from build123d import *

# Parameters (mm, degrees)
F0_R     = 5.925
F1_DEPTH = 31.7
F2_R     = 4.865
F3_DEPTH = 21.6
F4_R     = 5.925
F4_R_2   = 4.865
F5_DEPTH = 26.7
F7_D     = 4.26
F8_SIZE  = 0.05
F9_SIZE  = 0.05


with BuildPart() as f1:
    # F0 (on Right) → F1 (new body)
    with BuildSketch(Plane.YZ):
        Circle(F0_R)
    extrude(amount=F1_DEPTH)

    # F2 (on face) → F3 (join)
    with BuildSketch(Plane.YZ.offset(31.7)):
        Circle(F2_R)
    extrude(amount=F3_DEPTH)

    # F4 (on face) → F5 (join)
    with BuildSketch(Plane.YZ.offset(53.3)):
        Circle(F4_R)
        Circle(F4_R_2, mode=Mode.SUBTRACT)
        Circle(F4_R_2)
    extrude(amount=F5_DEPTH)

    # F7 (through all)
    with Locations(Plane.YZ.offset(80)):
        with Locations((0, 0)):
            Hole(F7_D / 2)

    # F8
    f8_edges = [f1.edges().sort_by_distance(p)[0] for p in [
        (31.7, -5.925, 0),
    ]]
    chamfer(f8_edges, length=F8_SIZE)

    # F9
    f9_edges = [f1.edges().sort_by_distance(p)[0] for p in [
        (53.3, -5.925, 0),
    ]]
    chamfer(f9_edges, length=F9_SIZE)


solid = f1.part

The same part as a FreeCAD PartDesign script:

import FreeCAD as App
import Part
import Sketcher


def edges_at(feature, points):
    """Names of the edges that pass closest to the given points."""
    edges = feature.Shape.Edges
    near = lambda p: min(range(len(edges)), key=lambda i: edges[i].distToShape(Part.Vertex(*p))[0])
    return sorted({f"Edge{near(p) + 1}" for p in points})

doc = App.newDocument("Part")
body = doc.addObject("PartDesign::Body", "Body")

sketch1 = body.newObject("Sketcher::SketchObject", "Sketch")
sketch1.AttachmentSupport = (doc.getObject("YZ_Plane"), [""])
sketch1.MapMode = "FlatFace"
sketch1.addGeometry(Part.Circle(App.Vector(0, 0, 0), App.Vector(0, 0, 1), 6), False)
sketch1.addConstraint([
    Sketcher.Constraint("Coincident", 0, 3, -1, 1),
    Sketcher.Constraint("Diameter", 0, 11.85),
])
pad1 = body.newObject("PartDesign::Pad", "Pad")
pad1.Profile = sketch1
pad1.Length = 31.7

sketch2 = body.newObject("Sketcher::SketchObject", "Sketch001")
sketch2.AttachmentSupport = (doc.getObject("YZ_Plane"), [""])
sketch2.MapMode = "FlatFace"
sketch2.AttachmentOffset = App.Placement(App.Vector(0, 0, 31.7), App.Rotation())
sketch2.addGeometry(Part.Circle(App.Vector(0, 0, 0), App.Vector(0, 0, 1), 4.9), False)
sketch2.addConstraint([
    Sketcher.Constraint("Coincident", 0, 3, -1, 1),
    Sketcher.Constraint("Diameter", 0, 9.73),
])
pad2 = body.newObject("PartDesign::Pad", "Pad001")
pad2.Profile = sketch2
pad2.Length = 21.6

sketch3 = body.newObject("Sketcher::SketchObject", "Sketch002")
sketch3.AttachmentSupport = (doc.getObject("YZ_Plane"), [""])
sketch3.MapMode = "FlatFace"
sketch3.AttachmentOffset = App.Placement(App.Vector(0, 0, 53.3), App.Rotation())
sketch3.addGeometry(Part.Circle(App.Vector(0, 0, 0), App.Vector(0, 0, 1), 6), False)
sketch3.addConstraint([
    Sketcher.Constraint("Coincident", 0, 3, -1, 1),
    Sketcher.Constraint("Diameter", 0, 11.85),
])
pad3 = body.newObject("PartDesign::Pad", "Pad002")
pad3.Profile = sketch3
pad3.Length = 26.7

sketch4 = body.newObject("Sketcher::SketchObject", "Sketch003")
sketch4.AttachmentSupport = (doc.getObject("YZ_Plane"), [""])
sketch4.MapMode = "FlatFace"
sketch4.AttachmentOffset = App.Placement(App.Vector(0, 0, 80), App.Rotation())
sketch4.addGeometry(Part.Circle(App.Vector(0, 0, 0), App.Vector(0, 0, 1), 2.1), False)
sketch4.addConstraint([
    Sketcher.Constraint("Coincident", 0, 3, -1, 1),
    Sketcher.Constraint("Diameter", 0, 4.26),
])
doc.recompute()
hole = body.newObject("PartDesign::Hole", "Hole")
hole.Profile = sketch4
hole.ThreadType = "None"
hole.Diameter = 4.26
hole.DepthType = "ThroughAll"
doc.recompute()

chamfer = body.newObject("PartDesign::Chamfer", "Chamfer")
chamfer.Base = (hole, edges_at(hole, [(31.7, -5.925, 0)]))
chamfer.Size = 0.05
doc.recompute()

chamfer2 = body.newObject("PartDesign::Chamfer", "Chamfer001")
chamfer2.Base = (chamfer, edges_at(chamfer, [(53.3, -5.925, 0)]))
chamfer2.Size = 0.05

doc.recompute()
